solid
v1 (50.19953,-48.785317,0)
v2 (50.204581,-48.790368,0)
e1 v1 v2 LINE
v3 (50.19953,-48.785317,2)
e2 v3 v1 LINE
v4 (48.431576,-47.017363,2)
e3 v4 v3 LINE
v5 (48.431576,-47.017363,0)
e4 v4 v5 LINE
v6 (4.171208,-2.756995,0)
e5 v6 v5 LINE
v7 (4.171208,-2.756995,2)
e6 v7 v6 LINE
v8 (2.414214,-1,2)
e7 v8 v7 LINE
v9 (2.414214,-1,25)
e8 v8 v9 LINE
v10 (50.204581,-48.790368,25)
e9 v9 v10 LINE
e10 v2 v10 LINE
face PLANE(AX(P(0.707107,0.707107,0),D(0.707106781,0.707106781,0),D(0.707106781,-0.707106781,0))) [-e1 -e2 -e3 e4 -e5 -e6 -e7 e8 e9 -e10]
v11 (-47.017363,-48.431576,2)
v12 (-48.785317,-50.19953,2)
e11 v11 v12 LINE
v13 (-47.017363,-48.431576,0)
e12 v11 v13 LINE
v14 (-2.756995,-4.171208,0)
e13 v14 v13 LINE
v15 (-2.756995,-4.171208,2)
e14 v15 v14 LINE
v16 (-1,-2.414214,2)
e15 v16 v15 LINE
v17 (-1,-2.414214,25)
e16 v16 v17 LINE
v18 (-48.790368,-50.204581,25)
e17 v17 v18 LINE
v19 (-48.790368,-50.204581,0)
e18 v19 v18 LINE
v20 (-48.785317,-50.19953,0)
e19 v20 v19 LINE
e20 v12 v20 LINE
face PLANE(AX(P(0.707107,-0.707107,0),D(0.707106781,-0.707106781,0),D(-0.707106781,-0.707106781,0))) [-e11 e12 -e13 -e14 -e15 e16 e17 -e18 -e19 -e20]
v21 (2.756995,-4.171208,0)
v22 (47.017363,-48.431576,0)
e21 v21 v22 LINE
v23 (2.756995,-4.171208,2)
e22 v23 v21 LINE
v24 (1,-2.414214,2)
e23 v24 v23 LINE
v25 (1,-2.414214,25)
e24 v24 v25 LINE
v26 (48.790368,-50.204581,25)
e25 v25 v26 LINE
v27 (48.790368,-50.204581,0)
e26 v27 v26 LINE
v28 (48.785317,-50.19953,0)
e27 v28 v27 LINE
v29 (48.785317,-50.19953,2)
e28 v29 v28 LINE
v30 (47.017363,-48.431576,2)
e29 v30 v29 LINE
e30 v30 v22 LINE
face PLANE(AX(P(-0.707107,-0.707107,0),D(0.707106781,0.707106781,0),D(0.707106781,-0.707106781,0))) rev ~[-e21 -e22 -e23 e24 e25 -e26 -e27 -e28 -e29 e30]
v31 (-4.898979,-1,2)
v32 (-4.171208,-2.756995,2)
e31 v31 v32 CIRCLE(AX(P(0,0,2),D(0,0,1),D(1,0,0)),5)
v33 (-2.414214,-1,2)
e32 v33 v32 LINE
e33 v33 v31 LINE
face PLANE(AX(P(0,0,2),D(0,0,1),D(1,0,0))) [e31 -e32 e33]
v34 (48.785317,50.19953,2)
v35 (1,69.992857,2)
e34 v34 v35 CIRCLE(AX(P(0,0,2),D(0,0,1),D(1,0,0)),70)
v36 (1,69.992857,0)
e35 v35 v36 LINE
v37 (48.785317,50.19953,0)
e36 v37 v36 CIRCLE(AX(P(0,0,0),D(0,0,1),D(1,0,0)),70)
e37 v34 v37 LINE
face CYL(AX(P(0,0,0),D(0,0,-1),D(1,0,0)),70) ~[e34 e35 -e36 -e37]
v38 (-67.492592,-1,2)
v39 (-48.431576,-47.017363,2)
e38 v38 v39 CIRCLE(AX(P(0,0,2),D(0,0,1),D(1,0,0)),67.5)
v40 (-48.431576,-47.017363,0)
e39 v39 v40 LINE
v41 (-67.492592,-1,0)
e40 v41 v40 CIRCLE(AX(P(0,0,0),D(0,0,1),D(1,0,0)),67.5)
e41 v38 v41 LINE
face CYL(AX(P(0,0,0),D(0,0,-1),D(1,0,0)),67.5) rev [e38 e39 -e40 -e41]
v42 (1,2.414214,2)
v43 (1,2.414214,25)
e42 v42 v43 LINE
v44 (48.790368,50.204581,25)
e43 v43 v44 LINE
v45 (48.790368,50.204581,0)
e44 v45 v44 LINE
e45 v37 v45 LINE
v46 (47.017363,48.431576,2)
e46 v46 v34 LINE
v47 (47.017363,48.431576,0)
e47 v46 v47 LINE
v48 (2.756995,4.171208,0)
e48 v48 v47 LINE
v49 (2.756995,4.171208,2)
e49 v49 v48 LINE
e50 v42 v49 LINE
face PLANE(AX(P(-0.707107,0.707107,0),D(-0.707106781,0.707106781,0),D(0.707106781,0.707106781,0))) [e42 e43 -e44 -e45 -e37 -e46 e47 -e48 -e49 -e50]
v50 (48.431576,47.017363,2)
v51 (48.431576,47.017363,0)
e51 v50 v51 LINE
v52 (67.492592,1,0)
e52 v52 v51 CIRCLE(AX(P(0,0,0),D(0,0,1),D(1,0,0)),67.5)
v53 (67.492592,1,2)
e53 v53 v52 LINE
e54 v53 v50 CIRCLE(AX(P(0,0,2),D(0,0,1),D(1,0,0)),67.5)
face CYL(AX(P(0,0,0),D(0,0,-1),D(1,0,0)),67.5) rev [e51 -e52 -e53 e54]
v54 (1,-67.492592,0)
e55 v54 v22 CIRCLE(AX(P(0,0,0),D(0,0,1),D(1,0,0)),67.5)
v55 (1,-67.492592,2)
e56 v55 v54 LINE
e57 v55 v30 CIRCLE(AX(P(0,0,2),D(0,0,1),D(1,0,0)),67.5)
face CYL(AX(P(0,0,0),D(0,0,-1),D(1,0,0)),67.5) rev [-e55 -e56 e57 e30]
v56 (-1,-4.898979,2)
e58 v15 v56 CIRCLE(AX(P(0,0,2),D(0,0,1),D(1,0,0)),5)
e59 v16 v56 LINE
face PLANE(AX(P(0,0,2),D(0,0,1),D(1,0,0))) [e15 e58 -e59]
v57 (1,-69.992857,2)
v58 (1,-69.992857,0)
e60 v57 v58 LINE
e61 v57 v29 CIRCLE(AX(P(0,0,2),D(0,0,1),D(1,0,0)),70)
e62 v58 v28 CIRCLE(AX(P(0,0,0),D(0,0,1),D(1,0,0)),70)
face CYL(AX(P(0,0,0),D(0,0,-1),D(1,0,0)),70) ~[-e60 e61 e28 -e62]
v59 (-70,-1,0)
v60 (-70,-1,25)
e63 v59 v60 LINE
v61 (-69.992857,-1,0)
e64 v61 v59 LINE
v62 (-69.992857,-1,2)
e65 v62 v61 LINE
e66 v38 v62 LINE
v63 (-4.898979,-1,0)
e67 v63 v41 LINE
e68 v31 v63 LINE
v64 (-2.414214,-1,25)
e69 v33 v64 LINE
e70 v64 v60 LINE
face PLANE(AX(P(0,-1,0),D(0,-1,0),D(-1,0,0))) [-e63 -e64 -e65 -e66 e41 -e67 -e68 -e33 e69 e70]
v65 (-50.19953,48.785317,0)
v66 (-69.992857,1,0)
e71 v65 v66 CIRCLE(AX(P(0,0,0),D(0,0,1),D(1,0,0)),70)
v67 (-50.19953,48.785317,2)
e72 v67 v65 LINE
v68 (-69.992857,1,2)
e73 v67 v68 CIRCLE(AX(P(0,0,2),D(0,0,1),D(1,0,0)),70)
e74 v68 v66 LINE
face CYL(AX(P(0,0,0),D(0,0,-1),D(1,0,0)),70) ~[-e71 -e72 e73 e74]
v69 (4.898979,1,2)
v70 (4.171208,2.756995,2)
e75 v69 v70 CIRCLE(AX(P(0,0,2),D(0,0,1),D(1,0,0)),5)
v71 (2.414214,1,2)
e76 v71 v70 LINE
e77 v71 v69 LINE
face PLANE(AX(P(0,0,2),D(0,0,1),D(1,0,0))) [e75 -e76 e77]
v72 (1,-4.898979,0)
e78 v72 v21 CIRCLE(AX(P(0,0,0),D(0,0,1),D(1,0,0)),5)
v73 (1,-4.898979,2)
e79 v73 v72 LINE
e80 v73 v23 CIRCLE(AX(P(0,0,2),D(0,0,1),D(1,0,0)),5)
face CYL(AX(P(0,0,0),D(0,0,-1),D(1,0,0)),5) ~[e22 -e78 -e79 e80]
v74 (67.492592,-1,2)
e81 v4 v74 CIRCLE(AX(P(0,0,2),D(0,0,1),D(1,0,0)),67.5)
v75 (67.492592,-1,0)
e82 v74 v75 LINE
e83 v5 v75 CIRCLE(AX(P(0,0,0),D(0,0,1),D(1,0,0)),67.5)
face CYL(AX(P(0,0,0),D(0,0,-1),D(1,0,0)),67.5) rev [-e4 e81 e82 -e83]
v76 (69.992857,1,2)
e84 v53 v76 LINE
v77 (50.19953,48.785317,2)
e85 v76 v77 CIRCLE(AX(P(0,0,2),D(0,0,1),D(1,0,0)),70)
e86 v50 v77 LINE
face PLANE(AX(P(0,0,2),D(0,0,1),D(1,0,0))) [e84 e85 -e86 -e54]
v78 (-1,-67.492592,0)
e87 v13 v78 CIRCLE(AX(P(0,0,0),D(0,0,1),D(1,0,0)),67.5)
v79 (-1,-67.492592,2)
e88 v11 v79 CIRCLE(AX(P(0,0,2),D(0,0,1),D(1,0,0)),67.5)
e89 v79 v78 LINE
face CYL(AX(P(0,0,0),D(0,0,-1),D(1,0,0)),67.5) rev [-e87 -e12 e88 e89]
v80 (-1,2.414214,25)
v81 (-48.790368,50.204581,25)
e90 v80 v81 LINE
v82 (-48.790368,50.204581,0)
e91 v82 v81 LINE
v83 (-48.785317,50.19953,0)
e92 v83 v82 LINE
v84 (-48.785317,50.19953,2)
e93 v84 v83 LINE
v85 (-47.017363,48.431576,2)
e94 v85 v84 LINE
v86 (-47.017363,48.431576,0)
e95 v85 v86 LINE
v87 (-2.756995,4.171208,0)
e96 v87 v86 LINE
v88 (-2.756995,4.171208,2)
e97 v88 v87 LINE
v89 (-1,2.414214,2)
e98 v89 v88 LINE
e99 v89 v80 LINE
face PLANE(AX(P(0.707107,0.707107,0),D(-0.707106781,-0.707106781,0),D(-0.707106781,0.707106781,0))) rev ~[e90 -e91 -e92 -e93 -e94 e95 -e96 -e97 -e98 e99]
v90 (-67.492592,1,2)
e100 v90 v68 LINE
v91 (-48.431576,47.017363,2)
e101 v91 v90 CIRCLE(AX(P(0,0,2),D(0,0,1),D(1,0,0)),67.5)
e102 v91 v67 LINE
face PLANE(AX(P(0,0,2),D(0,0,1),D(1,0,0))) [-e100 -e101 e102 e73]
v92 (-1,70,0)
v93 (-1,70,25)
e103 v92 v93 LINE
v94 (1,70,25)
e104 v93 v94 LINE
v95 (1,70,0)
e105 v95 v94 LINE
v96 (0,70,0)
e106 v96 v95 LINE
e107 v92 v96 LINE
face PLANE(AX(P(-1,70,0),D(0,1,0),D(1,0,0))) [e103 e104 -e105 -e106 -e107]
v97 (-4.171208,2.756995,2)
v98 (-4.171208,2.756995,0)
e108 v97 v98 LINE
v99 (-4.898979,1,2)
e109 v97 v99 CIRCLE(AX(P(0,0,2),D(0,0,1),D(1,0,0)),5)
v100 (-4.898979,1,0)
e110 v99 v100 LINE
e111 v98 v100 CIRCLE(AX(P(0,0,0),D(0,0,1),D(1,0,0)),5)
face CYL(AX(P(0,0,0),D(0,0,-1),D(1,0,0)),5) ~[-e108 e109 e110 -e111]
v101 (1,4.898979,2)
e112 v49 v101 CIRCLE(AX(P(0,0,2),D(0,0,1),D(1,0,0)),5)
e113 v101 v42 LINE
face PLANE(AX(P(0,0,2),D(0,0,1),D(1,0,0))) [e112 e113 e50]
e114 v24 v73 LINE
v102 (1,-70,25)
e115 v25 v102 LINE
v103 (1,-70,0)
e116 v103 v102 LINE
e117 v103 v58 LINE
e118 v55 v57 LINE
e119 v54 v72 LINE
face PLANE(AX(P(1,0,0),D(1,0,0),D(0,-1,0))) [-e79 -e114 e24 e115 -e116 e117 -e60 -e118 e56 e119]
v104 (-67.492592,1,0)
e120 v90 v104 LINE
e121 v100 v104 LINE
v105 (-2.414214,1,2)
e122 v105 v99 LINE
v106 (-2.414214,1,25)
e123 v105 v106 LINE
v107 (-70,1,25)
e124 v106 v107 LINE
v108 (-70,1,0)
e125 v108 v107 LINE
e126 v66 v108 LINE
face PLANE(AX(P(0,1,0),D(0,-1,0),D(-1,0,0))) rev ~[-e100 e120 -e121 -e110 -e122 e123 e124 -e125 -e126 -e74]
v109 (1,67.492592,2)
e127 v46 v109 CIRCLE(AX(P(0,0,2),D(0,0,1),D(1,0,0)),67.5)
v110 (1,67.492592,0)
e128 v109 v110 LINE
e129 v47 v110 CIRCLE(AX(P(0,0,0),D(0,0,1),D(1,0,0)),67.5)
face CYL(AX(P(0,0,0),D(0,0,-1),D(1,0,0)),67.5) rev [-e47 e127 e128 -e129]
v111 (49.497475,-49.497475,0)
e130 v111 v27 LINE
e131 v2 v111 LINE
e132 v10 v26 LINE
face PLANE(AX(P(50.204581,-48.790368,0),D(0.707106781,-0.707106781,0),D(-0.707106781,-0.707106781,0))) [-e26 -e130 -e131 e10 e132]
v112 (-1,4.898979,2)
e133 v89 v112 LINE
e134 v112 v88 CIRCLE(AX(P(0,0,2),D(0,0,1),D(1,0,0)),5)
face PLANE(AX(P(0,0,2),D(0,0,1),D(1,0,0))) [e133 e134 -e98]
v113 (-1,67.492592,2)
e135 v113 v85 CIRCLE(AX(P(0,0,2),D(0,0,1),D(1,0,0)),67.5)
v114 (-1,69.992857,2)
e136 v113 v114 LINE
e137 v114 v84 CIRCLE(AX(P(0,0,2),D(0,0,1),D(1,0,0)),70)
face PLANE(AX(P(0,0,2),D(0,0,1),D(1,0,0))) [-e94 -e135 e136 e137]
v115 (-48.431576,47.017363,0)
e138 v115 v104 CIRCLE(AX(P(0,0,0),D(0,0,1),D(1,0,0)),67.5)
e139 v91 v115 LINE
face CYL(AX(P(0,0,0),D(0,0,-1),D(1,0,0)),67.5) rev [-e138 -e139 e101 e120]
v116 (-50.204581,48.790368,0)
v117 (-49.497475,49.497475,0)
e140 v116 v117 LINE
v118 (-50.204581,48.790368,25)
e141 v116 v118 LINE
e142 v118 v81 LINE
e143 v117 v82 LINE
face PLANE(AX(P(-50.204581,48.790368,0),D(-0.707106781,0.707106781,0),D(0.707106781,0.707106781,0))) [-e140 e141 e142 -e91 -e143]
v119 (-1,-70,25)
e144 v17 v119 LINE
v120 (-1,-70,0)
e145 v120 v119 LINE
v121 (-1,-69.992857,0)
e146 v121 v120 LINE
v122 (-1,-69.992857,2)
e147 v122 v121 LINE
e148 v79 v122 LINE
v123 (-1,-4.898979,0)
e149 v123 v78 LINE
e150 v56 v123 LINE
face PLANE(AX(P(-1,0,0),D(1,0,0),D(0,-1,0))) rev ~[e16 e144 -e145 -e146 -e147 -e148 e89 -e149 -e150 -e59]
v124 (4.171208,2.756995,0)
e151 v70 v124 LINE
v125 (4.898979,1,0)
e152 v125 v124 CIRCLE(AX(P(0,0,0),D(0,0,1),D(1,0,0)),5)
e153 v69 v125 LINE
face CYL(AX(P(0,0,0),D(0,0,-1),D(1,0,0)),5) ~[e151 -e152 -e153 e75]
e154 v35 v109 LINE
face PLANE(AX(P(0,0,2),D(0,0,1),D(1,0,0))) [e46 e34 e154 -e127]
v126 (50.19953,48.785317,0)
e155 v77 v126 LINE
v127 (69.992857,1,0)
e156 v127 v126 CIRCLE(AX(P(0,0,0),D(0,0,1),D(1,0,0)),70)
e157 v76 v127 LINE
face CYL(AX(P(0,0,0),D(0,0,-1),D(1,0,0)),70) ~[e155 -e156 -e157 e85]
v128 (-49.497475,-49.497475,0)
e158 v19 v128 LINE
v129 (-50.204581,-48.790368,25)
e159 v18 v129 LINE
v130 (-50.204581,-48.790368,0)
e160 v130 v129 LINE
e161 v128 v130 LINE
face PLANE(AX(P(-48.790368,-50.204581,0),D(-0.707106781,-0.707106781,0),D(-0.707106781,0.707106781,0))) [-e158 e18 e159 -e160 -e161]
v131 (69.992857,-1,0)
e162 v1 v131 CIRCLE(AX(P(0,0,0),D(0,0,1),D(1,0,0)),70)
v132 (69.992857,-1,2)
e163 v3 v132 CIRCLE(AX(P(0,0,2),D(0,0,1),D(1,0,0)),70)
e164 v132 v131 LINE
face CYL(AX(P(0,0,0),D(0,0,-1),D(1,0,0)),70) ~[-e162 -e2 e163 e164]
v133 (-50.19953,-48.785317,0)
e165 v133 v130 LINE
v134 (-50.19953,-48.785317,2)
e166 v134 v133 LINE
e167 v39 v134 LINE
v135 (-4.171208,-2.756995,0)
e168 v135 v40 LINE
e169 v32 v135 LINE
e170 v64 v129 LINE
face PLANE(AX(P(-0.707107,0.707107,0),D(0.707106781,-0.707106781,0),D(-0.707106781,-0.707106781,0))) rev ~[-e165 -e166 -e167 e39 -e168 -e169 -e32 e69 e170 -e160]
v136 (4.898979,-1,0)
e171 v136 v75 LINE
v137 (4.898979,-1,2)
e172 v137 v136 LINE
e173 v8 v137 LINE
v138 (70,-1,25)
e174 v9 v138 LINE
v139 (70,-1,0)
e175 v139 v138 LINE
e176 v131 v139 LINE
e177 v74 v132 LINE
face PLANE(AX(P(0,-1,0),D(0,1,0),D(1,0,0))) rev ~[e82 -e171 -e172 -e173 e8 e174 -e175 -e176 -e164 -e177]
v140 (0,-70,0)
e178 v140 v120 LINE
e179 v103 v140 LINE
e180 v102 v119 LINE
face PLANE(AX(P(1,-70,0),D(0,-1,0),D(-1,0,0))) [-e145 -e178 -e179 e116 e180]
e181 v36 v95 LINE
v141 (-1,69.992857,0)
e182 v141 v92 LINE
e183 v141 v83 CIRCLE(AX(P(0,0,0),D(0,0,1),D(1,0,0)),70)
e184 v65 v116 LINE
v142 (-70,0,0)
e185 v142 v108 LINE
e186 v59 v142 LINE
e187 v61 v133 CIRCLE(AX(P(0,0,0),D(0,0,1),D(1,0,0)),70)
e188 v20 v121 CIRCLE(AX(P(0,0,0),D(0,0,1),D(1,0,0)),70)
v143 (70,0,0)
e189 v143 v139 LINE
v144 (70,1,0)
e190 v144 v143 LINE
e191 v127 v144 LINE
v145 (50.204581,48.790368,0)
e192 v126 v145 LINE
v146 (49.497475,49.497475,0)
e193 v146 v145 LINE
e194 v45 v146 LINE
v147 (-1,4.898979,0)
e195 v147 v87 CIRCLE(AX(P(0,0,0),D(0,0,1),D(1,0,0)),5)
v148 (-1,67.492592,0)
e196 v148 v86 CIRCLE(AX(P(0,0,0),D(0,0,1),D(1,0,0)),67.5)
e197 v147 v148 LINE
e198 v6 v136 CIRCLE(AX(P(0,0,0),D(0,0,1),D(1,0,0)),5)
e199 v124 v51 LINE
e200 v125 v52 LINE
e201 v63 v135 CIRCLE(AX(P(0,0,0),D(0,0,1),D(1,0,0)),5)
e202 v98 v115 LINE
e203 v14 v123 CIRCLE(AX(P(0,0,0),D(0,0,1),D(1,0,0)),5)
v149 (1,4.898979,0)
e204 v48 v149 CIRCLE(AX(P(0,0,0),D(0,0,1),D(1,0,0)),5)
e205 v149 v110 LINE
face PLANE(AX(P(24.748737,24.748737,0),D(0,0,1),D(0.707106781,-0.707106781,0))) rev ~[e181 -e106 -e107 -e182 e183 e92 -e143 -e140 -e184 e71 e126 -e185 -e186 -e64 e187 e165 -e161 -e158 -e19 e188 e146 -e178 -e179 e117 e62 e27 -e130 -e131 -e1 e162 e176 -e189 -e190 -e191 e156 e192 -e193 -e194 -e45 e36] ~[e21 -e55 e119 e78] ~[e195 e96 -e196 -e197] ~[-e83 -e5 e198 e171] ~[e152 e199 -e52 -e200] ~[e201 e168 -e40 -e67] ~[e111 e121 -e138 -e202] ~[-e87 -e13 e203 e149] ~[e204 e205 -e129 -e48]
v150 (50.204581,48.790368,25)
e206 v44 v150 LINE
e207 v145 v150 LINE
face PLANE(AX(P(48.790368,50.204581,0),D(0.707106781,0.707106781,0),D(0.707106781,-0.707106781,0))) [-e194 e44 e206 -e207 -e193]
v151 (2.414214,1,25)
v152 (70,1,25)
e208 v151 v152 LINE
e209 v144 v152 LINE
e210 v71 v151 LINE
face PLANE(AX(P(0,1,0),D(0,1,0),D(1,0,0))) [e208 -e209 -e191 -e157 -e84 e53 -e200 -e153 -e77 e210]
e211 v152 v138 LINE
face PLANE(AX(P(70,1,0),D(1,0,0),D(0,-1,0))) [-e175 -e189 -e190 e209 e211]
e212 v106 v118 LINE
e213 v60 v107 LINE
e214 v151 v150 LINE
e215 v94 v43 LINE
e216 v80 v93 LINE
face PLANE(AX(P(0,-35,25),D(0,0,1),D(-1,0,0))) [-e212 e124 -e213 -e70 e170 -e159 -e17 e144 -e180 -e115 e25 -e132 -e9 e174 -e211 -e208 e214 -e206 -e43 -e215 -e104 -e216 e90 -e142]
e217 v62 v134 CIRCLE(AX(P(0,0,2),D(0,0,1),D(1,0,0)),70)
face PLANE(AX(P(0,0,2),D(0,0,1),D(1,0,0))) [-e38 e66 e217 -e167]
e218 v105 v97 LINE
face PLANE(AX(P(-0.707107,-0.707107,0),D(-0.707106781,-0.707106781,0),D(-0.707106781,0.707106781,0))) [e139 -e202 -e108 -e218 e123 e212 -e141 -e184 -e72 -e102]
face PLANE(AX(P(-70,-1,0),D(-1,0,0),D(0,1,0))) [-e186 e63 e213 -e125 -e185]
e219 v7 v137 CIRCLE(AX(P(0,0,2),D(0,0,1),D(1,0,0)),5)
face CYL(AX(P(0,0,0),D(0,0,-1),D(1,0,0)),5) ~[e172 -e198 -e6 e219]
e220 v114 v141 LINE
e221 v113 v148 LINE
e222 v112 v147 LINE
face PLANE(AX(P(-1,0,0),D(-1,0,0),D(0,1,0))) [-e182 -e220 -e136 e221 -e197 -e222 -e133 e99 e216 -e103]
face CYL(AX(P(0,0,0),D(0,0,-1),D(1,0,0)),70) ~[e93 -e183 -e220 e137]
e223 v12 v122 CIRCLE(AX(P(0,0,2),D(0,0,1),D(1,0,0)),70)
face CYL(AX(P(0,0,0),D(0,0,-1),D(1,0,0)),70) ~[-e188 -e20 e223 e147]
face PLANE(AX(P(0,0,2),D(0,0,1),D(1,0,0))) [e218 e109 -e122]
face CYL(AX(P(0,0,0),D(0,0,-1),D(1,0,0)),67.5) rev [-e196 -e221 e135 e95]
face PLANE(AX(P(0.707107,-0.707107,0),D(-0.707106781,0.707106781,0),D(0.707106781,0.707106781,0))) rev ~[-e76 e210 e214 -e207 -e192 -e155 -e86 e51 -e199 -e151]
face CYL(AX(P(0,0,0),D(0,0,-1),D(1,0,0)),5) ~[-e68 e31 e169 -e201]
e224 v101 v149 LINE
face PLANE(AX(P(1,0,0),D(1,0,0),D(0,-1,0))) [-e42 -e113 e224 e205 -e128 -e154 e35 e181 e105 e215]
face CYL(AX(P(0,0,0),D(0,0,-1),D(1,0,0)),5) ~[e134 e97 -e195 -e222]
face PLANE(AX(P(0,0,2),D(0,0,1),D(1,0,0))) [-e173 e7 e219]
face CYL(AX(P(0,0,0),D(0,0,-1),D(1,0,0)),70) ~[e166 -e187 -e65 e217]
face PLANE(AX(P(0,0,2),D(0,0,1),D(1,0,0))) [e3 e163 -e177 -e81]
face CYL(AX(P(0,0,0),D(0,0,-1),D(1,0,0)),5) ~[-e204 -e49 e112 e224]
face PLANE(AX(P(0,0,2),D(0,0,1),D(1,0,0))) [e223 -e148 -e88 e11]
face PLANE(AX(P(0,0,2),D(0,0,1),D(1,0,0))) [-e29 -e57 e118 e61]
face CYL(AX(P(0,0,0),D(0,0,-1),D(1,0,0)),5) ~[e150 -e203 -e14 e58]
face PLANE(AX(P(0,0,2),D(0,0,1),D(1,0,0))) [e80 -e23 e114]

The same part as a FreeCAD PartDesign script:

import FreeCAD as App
import Part
import Sketcher


def add_polygon(sketch, points):
    """Adds a closed chain of lines whose ends are joined by coincident constraints."""
    first, n = sketch.GeometryCount, len(points)
    for a, b in zip(points, points[1:] + points[:1]):
        sketch.addGeometry(Part.LineSegment(App.Vector(*a, 0), App.Vector(*b, 0)), False)
    for i in range(n):
        sketch.addConstraint(Sketcher.Constraint("Coincident", first + i, 2, first + (i + 1) % n, 1))

doc = App.newDocument("Part")
body = doc.addObject("PartDesign::Body", "Body")

# Sketch on XY plane
sketch1 = body.newObject("Sketcher::SketchObject", "Sketch")
sketch1.AttachmentSupport = (doc.getObject("XY_Plane"), [""])
sketch1.MapMode = "FlatFace"
add_polygon(sketch1, [(-1, 70), (-1, 0), (1, 0), (1, 70)])  # lines 0-3
sketch1.addConstraint([
    Sketcher.Constraint("Vertical", 0),
    Sketcher.Constraint("Horizontal", 1),
    Sketcher.Constraint("Vertical", 2),
    Sketcher.Constraint("Horizontal", 3),
    Sketcher.Constraint("Symmetric", 0, 2, 1, 2, -1, 1),
    Sketcher.Constraint("DistanceX", 1, 1, 1, 2, 2.0),
    Sketcher.Constraint("DistanceY", 0, 2, 0, 1, 70.0),
])
pad1 = body.newObject("PartDesign::Pad", "Pad")
pad1.Profile = sketch1
pad1.Length = 25
doc.recompute()

polarpattern = body.newObject("PartDesign::PolarPattern", "PolarPattern")
polarpattern.Originals = [pad1]
polarpattern.Axis = (doc.getObject("Z_Axis"), [""])
polarpattern.Angle = 360
polarpattern.Occurrences = 8
body.Tip = polarpattern

# Sketch on XY plane
sketch2 = body.newObject("Sketcher::SketchObject", "Sketch001")
sketch2.AttachmentSupport = (doc.getObject("XY_Plane"), [""])
sketch2.MapMode = "FlatFace"
sketch2.addGeometry([
    Part.Circle(App.Vector(0, 0, 0), App.Vector(0, 0, 1), 70),
    Part.Circle(App.Vector(0, 0, 0), App.Vector(0, 0, 1), 67.5),
    Part.Circle(App.Vector(0, 0, 0), App.Vector(0, 0, 1), 5),
], False)
sketch2.addConstraint([
    Sketcher.Constraint("Coincident", 0, 3, -1, 1),
    Sketcher.Constraint("Coincident", 1, 3, -1, 1),
    Sketcher.Constraint("Coincident", 2, 3, -1, 1),
    Sketcher.Constraint("Diameter", 0, 140.0),
    Sketcher.Constraint("Diameter", 1, 135.0),
    Sketcher.Constraint("Diameter", 2, 10.0),
])
pad2 = body.newObject("PartDesign::Pad", "Pad001")
pad2.Profile = sketch2
pad2.Length = 2

doc.recompute()
